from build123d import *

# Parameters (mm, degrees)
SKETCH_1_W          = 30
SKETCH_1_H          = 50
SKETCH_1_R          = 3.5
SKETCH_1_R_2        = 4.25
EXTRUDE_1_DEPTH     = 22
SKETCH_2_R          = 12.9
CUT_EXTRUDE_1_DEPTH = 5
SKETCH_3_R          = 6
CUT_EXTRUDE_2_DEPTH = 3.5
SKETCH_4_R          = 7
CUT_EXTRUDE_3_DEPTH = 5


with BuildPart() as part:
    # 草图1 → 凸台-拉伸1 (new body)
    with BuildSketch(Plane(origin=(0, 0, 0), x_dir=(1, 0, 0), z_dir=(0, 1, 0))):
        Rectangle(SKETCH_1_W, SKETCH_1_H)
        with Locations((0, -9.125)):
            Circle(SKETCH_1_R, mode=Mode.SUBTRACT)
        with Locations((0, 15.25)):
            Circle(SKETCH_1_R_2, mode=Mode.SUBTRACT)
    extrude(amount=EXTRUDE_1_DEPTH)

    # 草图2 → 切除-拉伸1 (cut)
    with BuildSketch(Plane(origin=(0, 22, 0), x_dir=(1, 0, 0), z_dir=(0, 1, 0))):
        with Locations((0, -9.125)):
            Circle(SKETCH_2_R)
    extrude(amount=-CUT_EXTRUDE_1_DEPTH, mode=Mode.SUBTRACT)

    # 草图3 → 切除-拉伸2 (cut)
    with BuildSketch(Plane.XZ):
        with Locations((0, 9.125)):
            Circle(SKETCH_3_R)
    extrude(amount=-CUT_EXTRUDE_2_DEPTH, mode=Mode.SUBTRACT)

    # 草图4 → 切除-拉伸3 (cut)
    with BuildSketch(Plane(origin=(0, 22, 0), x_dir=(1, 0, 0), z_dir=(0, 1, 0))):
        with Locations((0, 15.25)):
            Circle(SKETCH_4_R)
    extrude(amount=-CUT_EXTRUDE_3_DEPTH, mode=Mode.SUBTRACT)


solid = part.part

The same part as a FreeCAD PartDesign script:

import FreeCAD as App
import Part
import Sketcher
from FreeCAD import Vector
Q = App.Units.Quantity


def add_polygon(sketch, points):
    """Adds a closed chain of lines whose ends are joined by coincident constraints."""
    first, n = sketch.GeometryCount, len(points)
    for a, b in zip(points, points[1:] + points[:1]):
        sketch.addGeometry(Part.LineSegment(App.Vector(*a, 0), App.Vector(*b, 0)), False)
    for i in range(n):
        sketch.addConstraint(Sketcher.Constraint("Coincident", first + i, 2, first + (i + 1) % n, 1))

doc = App.newDocument("Part")
body = doc.addObject("PartDesign::Body", "Body")

sketch1 = body.newObject("Sketcher::SketchObject", "Sketch")
sketch1.AttachmentSupport = (doc.getObject("XZ_Plane"), [""])
sketch1.MapMode = "FlatFace"
add_polygon(sketch1, [(-15, -25), (-15, 25), (15, 25), (15, -25)])
sketch1.addGeometry(Part.Circle(Vector(0, 9.1, 0), Vector(0, 0, 1), 3.5), False)
sketch1.addGeometry(Part.Circle(Vector(0, -15.2, 0), Vector(0, 0, 1), 4.2), False)
sketch1.addConstraint(Sketcher.Constraint("Vertical", 0))
sketch1.addConstraint(Sketcher.Constraint("Horizontal", 1))
sketch1.addConstraint(Sketcher.Constraint("Vertical", 2))
sketch1.addConstraint(Sketcher.Constraint("Horizontal", 3))
sketch1.addConstraint(Sketcher.Constraint("Symmetric", 0, 2, 2, 2, -1, 1))
sketch1.addConstraint(Sketcher.Constraint("PointOnObject", 4, 3, -2))
sketch1.addConstraint(Sketcher.Constraint("PointOnObject", 5, 3, -2))
sketch1.addConstraint(Sketcher.Constraint("Diameter", 4, Q("7 mm")))
sketch1.addConstraint(Sketcher.Constraint("Diameter", 5, Q("8.5 mm")))
sketch1.addConstraint(Sketcher.Constraint("DistanceX", 1, 1, 1, 2, Q("30 mm")))
sketch1.addConstraint(Sketcher.Constraint("DistanceY", 0, 1, 0, 2, Q("50 mm")))
sketch1.addConstraint(Sketcher.Constraint("DistanceY", 5, 3, -1, 1, Q("15.25 mm")))
sketch1.addConstraint(Sketcher.Constraint("DistanceY", -1, 1, 4, 3, Q("9.125 mm")))
pad1 = body.newObject("PartDesign::Pad", "Pad")
pad1.Profile = sketch1
pad1.Length = 22
pad1.Reversed = True

sketch2 = body.newObject("Sketcher::SketchObject", "Sketch001")
sketch2.AttachmentSupport = (doc.getObject("XZ_Plane"), [""])
sketch2.MapMode = "FlatFace"
sketch2.AttachmentOffset = App.Placement(Vector(0, 0, -22), App.Rotation())
sketch2.addGeometry(Part.Circle(Vector(0, 9, 0), Vector(0, 0, 1), 13), False)
sketch2.addConstraint(Sketcher.Constraint("PointOnObject", 0, 3, -2))
sketch2.addConstraint(Sketcher.Constraint("Diameter", 0, Q("25.8 mm")))
sketch2.addConstraint(Sketcher.Constraint("DistanceY", -1, 1, 0, 3, Q("9.125 mm")))
pocket1 = body.newObject("PartDesign::Pocket", "Pocket")
pocket1.Profile = sketch2
pocket1.Length = 5
pocket1.Reversed = True

sketch3 = body.newObject("Sketcher::SketchObject", "Sketch002")
sketch3.AttachmentSupport = (doc.getObject("XZ_Plane"), [""])
sketch3.MapMode = "FlatFace"
sketch3.addGeometry(Part.Circle(Vector(0, 9, 0), Vector(0, 0, 1), 6), False)
sketch3.addConstraint(Sketcher.Constraint("PointOnObject", 0, 3, -2))
sketch3.addConstraint(Sketcher.Constraint("Diameter", 0, Q("12 mm")))
sketch3.addConstraint(Sketcher.Constraint("DistanceY", -1, 1, 0, 3, Q("9.125 mm")))
pocket2 = body.newObject("PartDesign::Pocket", "Pocket001")
pocket2.Profile = sketch3
pocket2.Length = 3.5

sketch4 = body.newObject("Sketcher::SketchObject", "Sketch003")
sketch4.AttachmentSupport = (doc.getObject("XZ_Plane"), [""])
sketch4.MapMode = "FlatFace"
sketch4.AttachmentOffset = App.Placement(Vector(0, 0, -22), App.Rotation())
sketch4.addGeometry(Part.Circle(Vector(0, -15, 0), Vector(0, 0, 1), 7), False)
sketch4.addConstraint(Sketcher.Constraint("PointOnObject", 0, 3, -2))
sketch4.addConstraint(Sketcher.Constraint("Diameter", 0, Q("14 mm")))
sketch4.addConstraint(Sketcher.Constraint("DistanceY", 0, 3, -1, 1, Q("15.25 mm")))
pocket3 = body.newObject("PartDesign::Pocket", "Pocket002")
pocket3.Profile = sketch4
pocket3.Length = 5
pocket3.Reversed = True

doc.recompute()
